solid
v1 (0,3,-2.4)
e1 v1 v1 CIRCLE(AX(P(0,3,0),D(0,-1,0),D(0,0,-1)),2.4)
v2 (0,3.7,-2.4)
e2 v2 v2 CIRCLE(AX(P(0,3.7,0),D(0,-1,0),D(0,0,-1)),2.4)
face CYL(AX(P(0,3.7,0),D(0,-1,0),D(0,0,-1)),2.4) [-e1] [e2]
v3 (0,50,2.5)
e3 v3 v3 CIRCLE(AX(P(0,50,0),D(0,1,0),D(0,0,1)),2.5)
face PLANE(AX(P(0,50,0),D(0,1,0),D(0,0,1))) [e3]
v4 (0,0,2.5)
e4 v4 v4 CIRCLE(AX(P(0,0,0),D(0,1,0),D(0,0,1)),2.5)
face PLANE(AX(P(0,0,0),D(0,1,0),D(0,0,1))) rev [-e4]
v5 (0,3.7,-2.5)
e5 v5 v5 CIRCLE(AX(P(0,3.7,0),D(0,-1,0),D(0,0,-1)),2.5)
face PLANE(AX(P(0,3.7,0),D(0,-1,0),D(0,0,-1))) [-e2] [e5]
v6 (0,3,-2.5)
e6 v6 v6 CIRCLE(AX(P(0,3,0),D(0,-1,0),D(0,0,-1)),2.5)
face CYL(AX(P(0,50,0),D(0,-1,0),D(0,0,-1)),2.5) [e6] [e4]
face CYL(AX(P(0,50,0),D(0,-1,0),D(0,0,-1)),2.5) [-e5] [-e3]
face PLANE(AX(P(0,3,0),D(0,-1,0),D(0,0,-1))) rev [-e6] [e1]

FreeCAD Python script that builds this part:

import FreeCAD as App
import Part
import Sketcher
Q = App.Units.Quantity

doc = App.newDocument("Part")
params = doc.addObject("Spreadsheet::Sheet", "Params")
for row, (alias, value) in enumerate([
    ("sketch1_diameter", "5 mm"),
    ("pad1_length", "50 mm"),
    ("sketch2_diameter", "5 mm"),
    ("sketch2_diameter2", "4.8 mm"),
    ("pocket1_length", "0.7 mm"),
], start=1):
    params.set(f"A{row}", alias)
    params.set(f"B{row}", "=" + value)
    params.setAlias(f"B{row}", alias)

body = doc.addObject("PartDesign::Body", "Body")

# Sketch on XZ plane
sketch1 = body.newObject("Sketcher::SketchObject", "Sketch")
sketch1.AttachmentSupport = (doc.getObject("XZ_Plane"), [""])
sketch1.MapMode = "FlatFace"
sketch1.addGeometry(Part.Circle(App.Vector(0, 0, 0), App.Vector(0, 0, 1), 2.5), False)
sketch1.addConstraint([
    Sketcher.Constraint("Coincident", 0, 3, -1, 1),
    Sketcher.Constraint("Diameter", 0, Q("5 mm")),
])
sketch1.setExpression("Constraints[1]", "Params.sketch1_diameter")
pad1 = body.newObject("PartDesign::Pad", "Pad")
pad1.Profile = sketch1
pad1.setExpression("Length", "Params.pad1_length")
pad1.Reversed = True

# Sketch on XZ plane
sketch2 = body.newObject("Sketcher::SketchObject", "Sketch001")
sketch2.AttachmentSupport = (doc.getObject("XZ_Plane"), [""])
sketch2.MapMode = "FlatFace"
sketch2.AttachmentOffset = App.Placement(App.Vector(0, 0, -3), App.Rotation())
sketch2.addGeometry([
    Part.Circle(App.Vector(0, 0, 0), App.Vector(0, 0, 1), 2.5),
    Part.Circle(App.Vector(0, 0, 0), App.Vector(0, 0, 1), 2.4),
], False)
sketch2.addConstraint([
    Sketcher.Constraint("Coincident", 0, 3, -1, 1),
    Sketcher.Constraint("Coincident", 1, 3, -1, 1),
    Sketcher.Constraint("Diameter", 0, Q("5 mm")),
    Sketcher.Constraint("Diameter", 1, Q("4.8 mm")),
])
sketch2.setExpression("Constraints[2]", "Params.sketch2_diameter")
sketch2.setExpression("Constraints[3]", "Params.sketch2_diameter2")
pocket1 = body.newObject("PartDesign::Pocket", "Pocket")
pocket1.Profile = sketch2
pocket1.setExpression("Length", "Params.pocket1_length")

doc.recompute()
